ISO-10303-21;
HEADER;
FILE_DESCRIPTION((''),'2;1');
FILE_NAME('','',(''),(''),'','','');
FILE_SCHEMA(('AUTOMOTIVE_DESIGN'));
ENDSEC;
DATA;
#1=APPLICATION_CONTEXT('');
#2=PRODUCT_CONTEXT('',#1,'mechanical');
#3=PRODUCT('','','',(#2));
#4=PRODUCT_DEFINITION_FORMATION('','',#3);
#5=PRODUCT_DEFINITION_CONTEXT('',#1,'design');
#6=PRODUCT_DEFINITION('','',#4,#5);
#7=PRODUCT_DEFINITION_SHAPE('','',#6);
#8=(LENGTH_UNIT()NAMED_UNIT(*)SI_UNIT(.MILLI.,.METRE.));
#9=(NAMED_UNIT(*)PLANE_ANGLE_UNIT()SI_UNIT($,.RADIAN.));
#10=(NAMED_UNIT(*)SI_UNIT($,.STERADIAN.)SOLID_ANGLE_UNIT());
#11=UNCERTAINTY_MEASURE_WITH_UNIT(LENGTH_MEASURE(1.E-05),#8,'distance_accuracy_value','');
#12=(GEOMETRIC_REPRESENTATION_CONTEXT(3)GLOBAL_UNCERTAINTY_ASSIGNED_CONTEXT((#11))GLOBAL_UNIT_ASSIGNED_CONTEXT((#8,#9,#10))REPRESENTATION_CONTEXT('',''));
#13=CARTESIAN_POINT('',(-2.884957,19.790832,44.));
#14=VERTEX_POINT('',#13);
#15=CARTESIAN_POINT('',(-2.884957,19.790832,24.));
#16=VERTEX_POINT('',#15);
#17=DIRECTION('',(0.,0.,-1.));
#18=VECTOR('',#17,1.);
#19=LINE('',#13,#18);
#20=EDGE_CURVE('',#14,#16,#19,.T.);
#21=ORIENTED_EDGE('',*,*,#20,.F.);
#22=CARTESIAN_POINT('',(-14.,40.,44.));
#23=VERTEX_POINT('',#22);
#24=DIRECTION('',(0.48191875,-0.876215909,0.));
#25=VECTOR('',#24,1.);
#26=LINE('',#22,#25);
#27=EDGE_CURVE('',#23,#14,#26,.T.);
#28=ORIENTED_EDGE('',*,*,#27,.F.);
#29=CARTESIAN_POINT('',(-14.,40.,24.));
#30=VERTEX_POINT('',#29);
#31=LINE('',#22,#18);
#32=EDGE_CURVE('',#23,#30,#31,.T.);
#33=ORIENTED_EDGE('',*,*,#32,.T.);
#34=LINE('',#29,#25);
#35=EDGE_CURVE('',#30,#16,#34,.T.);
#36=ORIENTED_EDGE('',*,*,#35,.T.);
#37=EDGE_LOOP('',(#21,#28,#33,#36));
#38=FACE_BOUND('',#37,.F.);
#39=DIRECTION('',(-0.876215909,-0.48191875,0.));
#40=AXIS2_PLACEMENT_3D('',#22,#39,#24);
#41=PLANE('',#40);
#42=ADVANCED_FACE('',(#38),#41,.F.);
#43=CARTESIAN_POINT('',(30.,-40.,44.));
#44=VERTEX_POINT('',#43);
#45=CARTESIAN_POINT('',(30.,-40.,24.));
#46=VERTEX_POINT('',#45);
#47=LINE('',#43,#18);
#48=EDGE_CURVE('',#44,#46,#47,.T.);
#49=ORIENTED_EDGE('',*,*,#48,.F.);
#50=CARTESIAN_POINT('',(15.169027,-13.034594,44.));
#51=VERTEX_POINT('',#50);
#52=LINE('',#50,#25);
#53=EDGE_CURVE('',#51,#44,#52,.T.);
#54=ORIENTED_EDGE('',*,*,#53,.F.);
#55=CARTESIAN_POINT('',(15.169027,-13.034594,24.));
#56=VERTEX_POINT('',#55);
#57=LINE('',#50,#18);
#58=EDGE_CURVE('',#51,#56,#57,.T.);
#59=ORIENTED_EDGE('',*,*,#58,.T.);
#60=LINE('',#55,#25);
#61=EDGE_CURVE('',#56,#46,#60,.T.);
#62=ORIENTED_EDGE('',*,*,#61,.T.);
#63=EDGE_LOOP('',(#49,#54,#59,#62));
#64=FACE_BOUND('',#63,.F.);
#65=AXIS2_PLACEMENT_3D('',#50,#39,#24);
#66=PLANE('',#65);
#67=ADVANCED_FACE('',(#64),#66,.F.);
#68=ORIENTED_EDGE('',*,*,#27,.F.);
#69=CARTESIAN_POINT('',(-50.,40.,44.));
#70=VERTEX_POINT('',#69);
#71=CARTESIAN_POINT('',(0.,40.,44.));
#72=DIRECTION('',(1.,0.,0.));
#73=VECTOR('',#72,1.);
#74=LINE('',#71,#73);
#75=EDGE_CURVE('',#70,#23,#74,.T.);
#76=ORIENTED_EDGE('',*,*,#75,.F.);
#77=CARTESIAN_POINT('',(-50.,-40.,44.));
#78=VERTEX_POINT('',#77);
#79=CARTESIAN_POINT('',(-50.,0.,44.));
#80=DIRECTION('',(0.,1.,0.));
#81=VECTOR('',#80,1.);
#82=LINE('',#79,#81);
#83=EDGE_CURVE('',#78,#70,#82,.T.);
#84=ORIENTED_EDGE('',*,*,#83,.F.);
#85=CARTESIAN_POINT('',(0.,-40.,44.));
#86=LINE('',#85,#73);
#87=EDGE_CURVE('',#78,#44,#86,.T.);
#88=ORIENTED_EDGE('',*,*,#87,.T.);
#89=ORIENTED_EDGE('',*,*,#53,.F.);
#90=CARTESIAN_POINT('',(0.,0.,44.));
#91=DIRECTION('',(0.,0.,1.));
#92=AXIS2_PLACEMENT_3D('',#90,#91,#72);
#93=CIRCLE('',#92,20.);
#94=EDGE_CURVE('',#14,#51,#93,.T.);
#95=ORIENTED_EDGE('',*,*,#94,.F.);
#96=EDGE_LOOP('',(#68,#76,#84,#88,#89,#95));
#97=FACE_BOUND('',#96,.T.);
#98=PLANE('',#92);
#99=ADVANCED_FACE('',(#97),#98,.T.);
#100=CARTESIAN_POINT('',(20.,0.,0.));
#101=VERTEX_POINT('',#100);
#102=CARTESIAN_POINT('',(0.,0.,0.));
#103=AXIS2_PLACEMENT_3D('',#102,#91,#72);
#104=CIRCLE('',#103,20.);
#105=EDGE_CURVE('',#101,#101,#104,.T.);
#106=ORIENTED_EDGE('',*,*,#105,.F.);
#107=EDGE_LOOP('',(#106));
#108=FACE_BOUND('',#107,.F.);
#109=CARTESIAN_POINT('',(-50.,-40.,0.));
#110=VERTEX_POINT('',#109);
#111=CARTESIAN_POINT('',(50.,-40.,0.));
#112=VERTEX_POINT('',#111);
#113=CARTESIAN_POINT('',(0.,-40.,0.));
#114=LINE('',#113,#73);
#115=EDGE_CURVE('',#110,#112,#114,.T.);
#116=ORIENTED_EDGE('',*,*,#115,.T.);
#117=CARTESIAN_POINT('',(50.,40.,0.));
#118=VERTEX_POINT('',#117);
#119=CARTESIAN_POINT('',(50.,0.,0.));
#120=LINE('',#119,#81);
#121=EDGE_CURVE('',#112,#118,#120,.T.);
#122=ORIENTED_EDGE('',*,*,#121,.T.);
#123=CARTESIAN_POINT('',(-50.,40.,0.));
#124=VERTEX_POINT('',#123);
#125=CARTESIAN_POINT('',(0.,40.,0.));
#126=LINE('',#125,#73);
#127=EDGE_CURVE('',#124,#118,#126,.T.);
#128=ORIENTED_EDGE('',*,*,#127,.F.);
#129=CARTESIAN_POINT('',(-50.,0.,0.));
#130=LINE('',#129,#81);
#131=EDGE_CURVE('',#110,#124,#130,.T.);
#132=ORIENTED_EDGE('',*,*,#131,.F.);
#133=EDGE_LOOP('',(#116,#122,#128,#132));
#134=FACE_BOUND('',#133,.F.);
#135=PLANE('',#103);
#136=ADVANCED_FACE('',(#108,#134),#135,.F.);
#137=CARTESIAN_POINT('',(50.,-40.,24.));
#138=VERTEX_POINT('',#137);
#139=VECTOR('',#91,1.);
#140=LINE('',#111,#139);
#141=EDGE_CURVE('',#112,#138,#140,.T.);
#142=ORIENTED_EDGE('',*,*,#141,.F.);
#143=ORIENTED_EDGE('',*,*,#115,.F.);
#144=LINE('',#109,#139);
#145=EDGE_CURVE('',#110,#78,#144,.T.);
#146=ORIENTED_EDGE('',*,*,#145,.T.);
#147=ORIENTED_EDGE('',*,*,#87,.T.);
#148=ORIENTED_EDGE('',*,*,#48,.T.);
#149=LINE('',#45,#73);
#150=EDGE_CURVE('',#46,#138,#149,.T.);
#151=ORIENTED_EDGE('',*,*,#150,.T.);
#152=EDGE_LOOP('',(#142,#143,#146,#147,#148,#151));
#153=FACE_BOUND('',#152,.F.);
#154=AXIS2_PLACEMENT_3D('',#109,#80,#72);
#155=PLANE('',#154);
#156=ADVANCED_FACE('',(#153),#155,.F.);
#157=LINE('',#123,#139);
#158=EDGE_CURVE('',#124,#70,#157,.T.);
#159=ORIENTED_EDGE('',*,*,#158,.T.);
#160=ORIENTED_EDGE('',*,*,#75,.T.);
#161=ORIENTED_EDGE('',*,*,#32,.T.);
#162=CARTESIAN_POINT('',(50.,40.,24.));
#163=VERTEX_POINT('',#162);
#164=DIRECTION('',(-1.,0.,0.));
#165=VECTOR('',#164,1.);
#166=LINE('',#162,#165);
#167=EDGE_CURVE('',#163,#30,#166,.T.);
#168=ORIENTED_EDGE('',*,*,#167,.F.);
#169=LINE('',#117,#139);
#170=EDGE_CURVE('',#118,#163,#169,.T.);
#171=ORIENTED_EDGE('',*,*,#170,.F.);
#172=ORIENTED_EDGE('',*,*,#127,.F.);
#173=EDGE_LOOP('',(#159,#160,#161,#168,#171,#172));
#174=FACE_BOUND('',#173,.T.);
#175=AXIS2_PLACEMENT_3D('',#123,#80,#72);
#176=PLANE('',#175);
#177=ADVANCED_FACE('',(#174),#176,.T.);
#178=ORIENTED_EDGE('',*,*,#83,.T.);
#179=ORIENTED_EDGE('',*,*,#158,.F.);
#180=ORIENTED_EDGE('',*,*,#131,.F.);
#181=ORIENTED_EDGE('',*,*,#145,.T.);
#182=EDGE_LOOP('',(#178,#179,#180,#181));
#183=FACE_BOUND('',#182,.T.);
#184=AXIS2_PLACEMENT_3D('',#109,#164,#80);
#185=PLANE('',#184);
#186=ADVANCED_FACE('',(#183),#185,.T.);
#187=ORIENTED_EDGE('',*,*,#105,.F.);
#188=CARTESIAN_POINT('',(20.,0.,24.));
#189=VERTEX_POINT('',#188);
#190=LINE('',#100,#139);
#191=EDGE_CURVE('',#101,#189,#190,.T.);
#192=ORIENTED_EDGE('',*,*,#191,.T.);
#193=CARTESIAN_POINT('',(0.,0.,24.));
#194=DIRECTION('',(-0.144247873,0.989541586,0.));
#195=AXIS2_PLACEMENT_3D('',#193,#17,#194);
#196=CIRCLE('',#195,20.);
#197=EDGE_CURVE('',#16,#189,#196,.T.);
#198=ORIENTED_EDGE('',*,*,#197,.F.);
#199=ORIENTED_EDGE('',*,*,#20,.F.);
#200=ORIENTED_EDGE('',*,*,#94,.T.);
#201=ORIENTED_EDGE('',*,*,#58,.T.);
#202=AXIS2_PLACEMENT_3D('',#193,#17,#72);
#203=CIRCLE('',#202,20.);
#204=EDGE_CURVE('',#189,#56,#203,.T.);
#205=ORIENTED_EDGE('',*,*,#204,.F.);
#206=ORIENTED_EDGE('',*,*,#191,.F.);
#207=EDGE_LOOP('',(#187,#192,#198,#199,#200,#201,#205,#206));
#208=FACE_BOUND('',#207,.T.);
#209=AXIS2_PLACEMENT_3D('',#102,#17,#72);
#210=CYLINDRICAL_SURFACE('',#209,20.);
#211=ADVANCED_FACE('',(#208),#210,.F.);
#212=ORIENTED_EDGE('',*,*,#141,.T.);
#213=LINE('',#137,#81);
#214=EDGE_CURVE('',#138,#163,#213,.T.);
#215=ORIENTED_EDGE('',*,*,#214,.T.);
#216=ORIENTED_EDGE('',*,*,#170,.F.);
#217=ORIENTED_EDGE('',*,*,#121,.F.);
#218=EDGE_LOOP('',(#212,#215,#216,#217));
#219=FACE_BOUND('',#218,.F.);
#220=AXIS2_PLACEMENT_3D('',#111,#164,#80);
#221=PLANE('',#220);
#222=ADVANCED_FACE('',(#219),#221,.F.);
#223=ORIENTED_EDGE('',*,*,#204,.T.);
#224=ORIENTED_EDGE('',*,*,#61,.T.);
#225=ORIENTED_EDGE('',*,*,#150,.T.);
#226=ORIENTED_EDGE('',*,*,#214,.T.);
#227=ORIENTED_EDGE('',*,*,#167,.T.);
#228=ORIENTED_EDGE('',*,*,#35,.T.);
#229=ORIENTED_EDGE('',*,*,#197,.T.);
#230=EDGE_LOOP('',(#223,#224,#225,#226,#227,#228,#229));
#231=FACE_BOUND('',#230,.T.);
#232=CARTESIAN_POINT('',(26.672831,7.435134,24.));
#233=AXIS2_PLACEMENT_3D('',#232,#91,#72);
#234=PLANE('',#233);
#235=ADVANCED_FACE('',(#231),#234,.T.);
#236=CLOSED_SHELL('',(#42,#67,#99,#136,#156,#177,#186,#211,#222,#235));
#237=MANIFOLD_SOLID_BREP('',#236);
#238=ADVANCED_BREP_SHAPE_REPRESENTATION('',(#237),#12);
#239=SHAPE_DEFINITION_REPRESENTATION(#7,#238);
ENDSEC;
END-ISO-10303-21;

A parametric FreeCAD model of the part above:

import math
import FreeCAD as App
import Part
import Sketcher


def add_polygon(sketch, points):
    """Adds a closed chain of lines whose ends are joined by coincident constraints."""
    first, n = sketch.GeometryCount, len(points)
    for a, b in zip(points, points[1:] + points[:1]):
        sketch.addGeometry(Part.LineSegment(App.Vector(*a, 0), App.Vector(*b, 0)), False)
    for i in range(n):
        sketch.addConstraint(Sketcher.Constraint("Coincident", first + i, 2, first + (i + 1) % n, 1))

doc = App.newDocument("Part")
body = doc.addObject("PartDesign::Body", "Body")

# Sketch on XY plane
sketch1 = body.newObject("Sketcher::SketchObject", "Sketch")
sketch1.AttachmentSupport = (doc.getObject("XY_Plane"), [""])
sketch1.MapMode = "FlatFace"
add_polygon(sketch1, [(-50, 40), (-50, -40), (50, -40), (50, 40)])  # lines 0-3
sketch1.addGeometry(Part.Circle(App.Vector(0, 0, 0), App.Vector(0, 0, 1), 20), False)  # 4
sketch1.addConstraint(Sketcher.Constraint("Vertical", 0))
sketch1.addConstraint(Sketcher.Constraint("Horizontal", 1))
sketch1.addConstraint(Sketcher.Constraint("Vertical", 2))
sketch1.addConstraint(Sketcher.Constraint("Horizontal", 3))
sketch1.addConstraint(Sketcher.Constraint("Coincident", 4, 3, -1, 1))
sketch1.addConstraint(Sketcher.Constraint("Symmetric", 0, 2, 2, 2, -1, 1))
sketch1.addConstraint(Sketcher.Constraint("Diameter", 4, 40.0))
sketch1.addConstraint(Sketcher.Constraint("DistanceX", 1, 1, 1, 2, 100.0))
sketch1.addConstraint(Sketcher.Constraint("DistanceY", 0, 2, 0, 1, 80.0))
pad1 = body.newObject("PartDesign::Pad", "Pad")
pad1.Profile = sketch1
pad1.Length = 44

# Sketch on XY plane
sketch2 = body.newObject("Sketcher::SketchObject", "Sketch001")
sketch2.AttachmentSupport = (doc.getObject("XY_Plane"), [""])
sketch2.MapMode = "FlatFace"
sketch2.AttachmentOffset = App.Placement(App.Vector(0, 0, 44), App.Rotation())
sketch2.addGeometry(Part.LineSegment(App.Vector(50, -40, 0), App.Vector(50, 40, 0)), False)
sketch2.addGeometry(Part.LineSegment(App.Vector(50, 40, 0), App.Vector(-14, 40, 0)), False)
sketch2.addGeometry(Part.LineSegment(App.Vector(-14, 40, 0), App.Vector(-2.884957, 19.790832, 0)), False)
sketch2.addGeometry(Part.ArcOfCircle(Part.Circle(App.Vector(0, 0, 0), App.Vector(0, 0, 1), 20), math.radians(0), math.radians(98.293728)), False)
sketch2.addGeometry(Part.ArcOfCircle(Part.Circle(App.Vector(0, 0, 0), App.Vector(0, 0, 1), 20), math.radians(-40.67214), math.radians(0)), False)
sketch2.addGeometry(Part.LineSegment(App.Vector(15.169027, -13.034594, 0), App.Vector(30, -40, 0)), False)
sketch2.addGeometry(Part.LineSegment(App.Vector(30, -40, 0), App.Vector(50, -40, 0)), False)
sketch2.addConstraint(Sketcher.Constraint("Coincident", 0, 2, 1, 1))
sketch2.addConstraint(Sketcher.Constraint("Coincident", 1, 2, 2, 1))
sketch2.addConstraint(Sketcher.Constraint("Coincident", 2, 2, 3, 2))
sketch2.addConstraint(Sketcher.Constraint("Tangent", 3, 1, 4, 2))
sketch2.addConstraint(Sketcher.Constraint("Coincident", 4, 1, 5, 1))
sketch2.addConstraint(Sketcher.Constraint("Coincident", 5, 2, 6, 1))
sketch2.addConstraint(Sketcher.Constraint("Coincident", 6, 2, 0, 1))
sketch2.addConstraint(Sketcher.Constraint("Vertical", 0))
sketch2.addConstraint(Sketcher.Constraint("Horizontal", 1))
sketch2.addConstraint(Sketcher.Constraint("Horizontal", 6))
sketch2.addConstraint(Sketcher.Constraint("Coincident", 3, 3, -1, 1))
sketch2.addConstraint(Sketcher.Constraint("Equal", 3, 4))
sketch2.addConstraint(Sketcher.Constraint("PointOnObject", 3, 1, -1))
sketch2.addConstraint(Sketcher.Constraint("Parallel", 2, 5))
sketch2.addConstraint(Sketcher.Constraint("Radius", 3, 20.0))
sketch2.addConstraint(Sketcher.Constraint("DistanceX", 1, 2, 1, 1, 64.0))
sketch2.addConstraint(Sketcher.Constraint("DistanceX", 6, 1, 6, 2, 20.0))
sketch2.addConstraint(Sketcher.Constraint("DistanceY", 0, 1, 0, 2, 80.0))
sketch2.addConstraint(Sketcher.Constraint("DistanceX", -1, 1, 0, 2, 50.0))
sketch2.addConstraint(Sketcher.Constraint("DistanceY", -1, 1, 0, 2, 40.0))
sketch2.addConstraint(Sketcher.Constraint("DistanceY", -1, 1, 2, 2, 19.790832))
pocket1 = body.newObject("PartDesign::Pocket", "Pocket")
pocket1.Profile = sketch2
pocket1.Length = 20

doc.recompute()
